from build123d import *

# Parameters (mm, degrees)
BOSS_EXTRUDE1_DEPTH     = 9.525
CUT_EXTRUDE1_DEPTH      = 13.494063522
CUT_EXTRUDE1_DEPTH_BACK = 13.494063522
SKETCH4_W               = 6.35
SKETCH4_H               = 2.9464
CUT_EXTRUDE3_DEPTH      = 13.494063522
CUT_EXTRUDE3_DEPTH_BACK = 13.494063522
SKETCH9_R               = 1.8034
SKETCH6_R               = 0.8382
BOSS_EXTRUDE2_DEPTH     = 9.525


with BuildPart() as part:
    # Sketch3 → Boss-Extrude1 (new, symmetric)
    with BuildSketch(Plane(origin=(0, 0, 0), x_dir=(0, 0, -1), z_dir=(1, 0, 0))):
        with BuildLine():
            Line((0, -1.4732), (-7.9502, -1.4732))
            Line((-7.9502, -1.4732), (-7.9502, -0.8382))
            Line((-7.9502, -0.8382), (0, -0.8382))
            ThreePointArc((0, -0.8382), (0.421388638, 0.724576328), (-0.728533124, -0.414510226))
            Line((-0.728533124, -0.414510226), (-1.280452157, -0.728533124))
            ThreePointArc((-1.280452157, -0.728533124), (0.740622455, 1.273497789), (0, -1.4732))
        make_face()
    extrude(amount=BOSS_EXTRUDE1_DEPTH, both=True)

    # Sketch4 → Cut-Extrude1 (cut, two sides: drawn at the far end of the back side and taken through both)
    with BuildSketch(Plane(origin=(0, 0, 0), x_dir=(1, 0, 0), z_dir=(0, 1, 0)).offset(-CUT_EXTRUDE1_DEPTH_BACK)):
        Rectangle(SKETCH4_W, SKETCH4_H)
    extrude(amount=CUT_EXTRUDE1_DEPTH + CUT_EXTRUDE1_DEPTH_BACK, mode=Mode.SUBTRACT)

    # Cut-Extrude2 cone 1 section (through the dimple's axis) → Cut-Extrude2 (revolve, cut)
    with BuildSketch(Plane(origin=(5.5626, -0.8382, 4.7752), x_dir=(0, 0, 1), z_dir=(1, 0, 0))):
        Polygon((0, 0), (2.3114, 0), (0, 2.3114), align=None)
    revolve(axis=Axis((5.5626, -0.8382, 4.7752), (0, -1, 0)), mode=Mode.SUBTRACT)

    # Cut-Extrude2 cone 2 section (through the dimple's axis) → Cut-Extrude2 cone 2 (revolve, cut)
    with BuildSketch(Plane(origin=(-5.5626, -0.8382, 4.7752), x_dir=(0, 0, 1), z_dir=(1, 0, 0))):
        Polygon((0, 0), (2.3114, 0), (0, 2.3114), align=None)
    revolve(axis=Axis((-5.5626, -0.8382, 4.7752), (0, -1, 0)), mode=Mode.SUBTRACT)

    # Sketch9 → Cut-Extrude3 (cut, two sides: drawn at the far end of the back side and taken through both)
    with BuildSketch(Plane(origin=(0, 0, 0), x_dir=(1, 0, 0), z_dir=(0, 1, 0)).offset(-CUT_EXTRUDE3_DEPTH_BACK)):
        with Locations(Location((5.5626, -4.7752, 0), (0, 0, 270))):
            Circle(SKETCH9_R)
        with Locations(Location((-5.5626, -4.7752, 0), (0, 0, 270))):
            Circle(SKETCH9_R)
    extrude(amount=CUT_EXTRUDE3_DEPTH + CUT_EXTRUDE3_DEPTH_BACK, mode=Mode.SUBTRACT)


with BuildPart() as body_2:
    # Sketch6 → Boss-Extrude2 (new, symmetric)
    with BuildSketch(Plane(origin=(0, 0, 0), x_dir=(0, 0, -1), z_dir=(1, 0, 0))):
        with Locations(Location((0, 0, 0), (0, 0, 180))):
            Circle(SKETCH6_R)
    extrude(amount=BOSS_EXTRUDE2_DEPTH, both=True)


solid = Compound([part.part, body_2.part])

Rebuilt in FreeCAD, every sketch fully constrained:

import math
import FreeCAD as App
import Part
import Sketcher
Q = App.Units.Quantity

doc = App.newDocument("Part")
body = doc.addObject("PartDesign::Body", "Body")

# Sketch on YZ plane
sketch1 = body.newObject("Sketcher::SketchObject", "Sketch")
sketch1.AttachmentSupport = (doc.getObject("YZ_Plane"), [""])
sketch1.MapMode = "FlatFace"
sketch1.addGeometry(Part.LineSegment(App.Vector(-1.5, 8, 0), App.Vector(-1.5, 0, 0)), False)
sketch1.addGeometry(Part.ArcOfCircle(Part.Circle(App.Vector(0, 0, 0), App.Vector(0, 0, 1), 1.5), math.radians(180), math.radians(480)), False)
sketch1.addGeometry(Part.LineSegment(App.Vector(-0.7, 1.3, 0), App.Vector(-0.4, 0.7, 0)), False)
sketch1.addGeometry(Part.ArcOfCircle(Part.Circle(App.Vector(0, 0, 0), App.Vector(0, 0, 1), 0.8), math.radians(180), math.radians(480)), False)
sketch1.addGeometry(Part.LineSegment(App.Vector(-0.8, 0, 0), App.Vector(-0.8, 8, 0)), False)
sketch1.addGeometry(Part.LineSegment(App.Vector(-0.8, 8, 0), App.Vector(-1.5, 8, 0)), False)
sketch1.addConstraint(Sketcher.Constraint("Tangent", 0, 2, 1, 1))
sketch1.addConstraint(Sketcher.Constraint("Coincident", 1, 2, 2, 1))
sketch1.addConstraint(Sketcher.Constraint("Coincident", 2, 2, 3, 2))
sketch1.addConstraint(Sketcher.Constraint("Tangent", 3, 1, 4, 1))
sketch1.addConstraint(Sketcher.Constraint("Coincident", 4, 2, 5, 1))
sketch1.addConstraint(Sketcher.Constraint("Coincident", 5, 2, 0, 1))
sketch1.addConstraint(Sketcher.Constraint("Vertical", 0))
sketch1.addConstraint(Sketcher.Constraint("Vertical", 4))
sketch1.addConstraint(Sketcher.Constraint("Horizontal", 5))
sketch1.addConstraint(Sketcher.Constraint("Coincident", 1, 3, -1, 1))
sketch1.addConstraint(Sketcher.Constraint("Coincident", 3, 3, -1, 1))
sketch1.addConstraint(Sketcher.Constraint("Radius", 1, Q("0.058 in")))
sketch1.addConstraint(Sketcher.Constraint("Radius", 3, Q("0.033 in")))
sketch1.addConstraint(Sketcher.Constraint("DistanceY", 0, 2, 0, 1, Q("0.313 in")))
sketch1.addConstraint(Sketcher.Constraint("DistanceX", 2, 2, -1, 1, 0.41451))
sketch1.addConstraint(Sketcher.Constraint("DistanceY", 2, 2, 1, 2, 0.551919))
pad1 = body.newObject("PartDesign::Pad", "Pad")
pad1.Profile = sketch1
pad1.Length = Q("0.75 in")
pad1.Midplane = True

# Sketch on XZ plane
sketch2 = body.newObject("Sketcher::SketchObject", "Sketch001")
sketch2.AttachmentSupport = (doc.getObject("XZ_Plane"), [""])
sketch2.MapMode = "FlatFace"
sketch2.addGeometry(Part.LineSegment(App.Vector(-3.2, -1.5, 0), App.Vector(-3.2, 1.5, 0)), False)
sketch2.addGeometry(Part.LineSegment(App.Vector(-3.2, 1.5, 0), App.Vector(3.2, 1.5, 0)), False)
sketch2.addGeometry(Part.LineSegment(App.Vector(3.2, 1.5, 0), App.Vector(3.2, -1.5, 0)), False)
sketch2.addGeometry(Part.LineSegment(App.Vector(3.2, -1.5, 0), App.Vector(-3.2, -1.5, 0)), False)
sketch2.addConstraint(Sketcher.Constraint("Coincident", 0, 2, 1, 1))
sketch2.addConstraint(Sketcher.Constraint("Coincident", 1, 2, 2, 1))
sketch2.addConstraint(Sketcher.Constraint("Coincident", 2, 2, 3, 1))
sketch2.addConstraint(Sketcher.Constraint("Coincident", 3, 2, 0, 1))
sketch2.addConstraint(Sketcher.Constraint("Vertical", 0))
sketch2.addConstraint(Sketcher.Constraint("Horizontal", 1))
sketch2.addConstraint(Sketcher.Constraint("Vertical", 2))
sketch2.addConstraint(Sketcher.Constraint("Horizontal", 3))
sketch2.addConstraint(Sketcher.Constraint("Symmetric", 0, 2, 2, 2, -1, 1))
sketch2.addConstraint(Sketcher.Constraint("DistanceX", 1, 1, 1, 2, Q("0.25 in")))
sketch2.addConstraint(Sketcher.Constraint("DistanceY", 0, 1, 0, 2, Q("0.116 in")))
pocket1 = body.newObject("PartDesign::Pocket", "Pocket")
pocket1.Profile = sketch2
pocket1.Type = "ThroughAll"
pocket1.Midplane = True

# Sketch on YZ plane
sketch3 = body.newObject("Sketcher::SketchObject", "Sketch002")
sketch3.AttachmentSupport = (doc.getObject("YZ_Plane"), [""])
sketch3.MapMode = "FlatFace"
sketch3.AttachmentOffset = App.Placement(App.Vector(0, 0, 0.219 * 25.4), App.Rotation())
sketch3.addGeometry(Part.LineSegment(App.Vector(-0.8, 4.8, 0), App.Vector(-0.8, 7.1, 0)), False)
sketch3.addGeometry(Part.LineSegment(App.Vector(-0.8, 7.1, 0), App.Vector(-3.1, 4.8, 0)), False)
sketch3.addGeometry(Part.LineSegment(App.Vector(-3.1, 4.8, 0), App.Vector(-0.8, 4.8, 0)), False)
sketch3.addGeometry(Part.LineSegment(App.Vector(-0.8, 4.8, 0), App.Vector(-3.1, 4.8, 0)), True)  # axis
sketch3.addConstraint(Sketcher.Constraint("Coincident", 0, 2, 1, 1))
sketch3.addConstraint(Sketcher.Constraint("Coincident", 1, 2, 2, 1))
sketch3.addConstraint(Sketcher.Constraint("Coincident", 2, 2, 0, 1))
sketch3.addConstraint(Sketcher.Constraint("Vertical", 0))
sketch3.addConstraint(Sketcher.Constraint("Horizontal", 2))
sketch3.addConstraint(Sketcher.Constraint("Horizontal", 3))
sketch3.addConstraint(Sketcher.Constraint("Coincident", 3, 1, 2, 2))
sketch3.addConstraint(Sketcher.Constraint("Equal", 2, 3))
sketch3.addConstraint(Sketcher.Constraint("Equal", 3, 0))
sketch3.addConstraint(Sketcher.Constraint("DistanceX", 2, 1, 2, 2, Q("0.091 in")))
sketch3.addConstraint(Sketcher.Constraint("DistanceX", 0, 2, -1, 1, Q("0.033 in")))
sketch3.addConstraint(Sketcher.Constraint("DistanceY", -1, 1, 0, 2, Q("0.279 in")))
groove = body.newObject("PartDesign::Groove", "Groove")
groove.Profile = sketch3
groove.ReferenceAxis = (sketch3, ["Axis0"])
groove.Angle = 360

# Sketch on YZ plane
sketch4 = body.newObject("Sketcher::SketchObject", "Sketch003")
sketch4.AttachmentSupport = (doc.getObject("YZ_Plane"), [""])
sketch4.MapMode = "FlatFace"
sketch4.AttachmentOffset = App.Placement(App.Vector(0, 0, -0.219 * 25.4), App.Rotation())
sketch4.addGeometry(Part.LineSegment(App.Vector(-0.8, 4.8, 0), App.Vector(-0.8, 7.1, 0)), False)
sketch4.addGeometry(Part.LineSegment(App.Vector(-0.8, 7.1, 0), App.Vector(-3.1, 4.8, 0)), False)
sketch4.addGeometry(Part.LineSegment(App.Vector(-3.1, 4.8, 0), App.Vector(-0.8, 4.8, 0)), False)
sketch4.addGeometry(Part.LineSegment(App.Vector(-0.8, 4.8, 0), App.Vector(-3.1, 4.8, 0)), True)  # axis
sketch4.addConstraint(Sketcher.Constraint("Coincident", 0, 2, 1, 1))
sketch4.addConstraint(Sketcher.Constraint("Coincident", 1, 2, 2, 1))
sketch4.addConstraint(Sketcher.Constraint("Coincident", 2, 2, 0, 1))
sketch4.addConstraint(Sketcher.Constraint("Vertical", 0))
sketch4.addConstraint(Sketcher.Constraint("Horizontal", 2))
sketch4.addConstraint(Sketcher.Constraint("Horizontal", 3))
sketch4.addConstraint(Sketcher.Constraint("Coincident", 3, 1, 2, 2))
sketch4.addConstraint(Sketcher.Constraint("Equal", 2, 3))
sketch4.addConstraint(Sketcher.Constraint("Equal", 3, 0))
sketch4.addConstraint(Sketcher.Constraint("DistanceX", 2, 1, 2, 2, Q("0.091 in")))
sketch4.addConstraint(Sketcher.Constraint("DistanceX", 0, 2, -1, 1, Q("0.033 in")))
sketch4.addConstraint(Sketcher.Constraint("DistanceY", -1, 1, 0, 2, Q("0.279 in")))
groove2 = body.newObject("PartDesign::Groove", "Groove001")
groove2.Profile = sketch4
groove2.ReferenceAxis = (sketch4, ["Axis0"])
groove2.Angle = 360

# Sketch on XZ plane
sketch5 = body.newObject("Sketcher::SketchObject", "Sketch004")
sketch5.AttachmentSupport = (doc.getObject("XZ_Plane"), [""])
sketch5.MapMode = "FlatFace"
sketch5.addGeometry(Part.Circle(App.Vector(5.6, 4.8, 0), App.Vector(0, 0, 1), 1.8), False)
sketch5.addGeometry(Part.Circle(App.Vector(-5.6, 4.8, 0), App.Vector(0, 0, 1), 1.8), False)
sketch5.addConstraint(Sketcher.Constraint("Equal", 0, 1))
sketch5.addConstraint(Sketcher.Constraint("Symmetric", 0, 3, 1, 3, -2))
sketch5.addConstraint(Sketcher.Constraint("Diameter", 0, Q("0.142 in")))
sketch5.addConstraint(Sketcher.Constraint("DistanceX", -1, 1, 0, 3, Q("0.219 in")))
sketch5.addConstraint(Sketcher.Constraint("DistanceY", -1, 1, 0, 3, Q("0.188 in")))
pocket2 = body.newObject("PartDesign::Pocket", "Pocket001")
pocket2.Profile = sketch5
pocket2.Type = "ThroughAll"
pocket2.Midplane = True
body2 = doc.addObject("PartDesign::Body", "Body001")

# Sketch on YZ plane
sketch6 = body2.newObject("Sketcher::SketchObject", "Sketch005")
sketch6.AttachmentSupport = (doc.getObject("YZ_Plane001"), [""])
sketch6.MapMode = "FlatFace"
sketch6.addGeometry(Part.Circle(App.Vector(0, 0, 0), App.Vector(0, 0, 1), 0.8), False)
sketch6.addConstraint(Sketcher.Constraint("Coincident", 0, 3, -1, 1))
sketch6.addConstraint(Sketcher.Constraint("Diameter", 0, Q("0.066 in")))
pad2 = body2.newObject("PartDesign::Pad", "Pad001")
pad2.Profile = sketch6
pad2.Length = Q("0.75 in")
pad2.Midplane = True

doc.recompute()
